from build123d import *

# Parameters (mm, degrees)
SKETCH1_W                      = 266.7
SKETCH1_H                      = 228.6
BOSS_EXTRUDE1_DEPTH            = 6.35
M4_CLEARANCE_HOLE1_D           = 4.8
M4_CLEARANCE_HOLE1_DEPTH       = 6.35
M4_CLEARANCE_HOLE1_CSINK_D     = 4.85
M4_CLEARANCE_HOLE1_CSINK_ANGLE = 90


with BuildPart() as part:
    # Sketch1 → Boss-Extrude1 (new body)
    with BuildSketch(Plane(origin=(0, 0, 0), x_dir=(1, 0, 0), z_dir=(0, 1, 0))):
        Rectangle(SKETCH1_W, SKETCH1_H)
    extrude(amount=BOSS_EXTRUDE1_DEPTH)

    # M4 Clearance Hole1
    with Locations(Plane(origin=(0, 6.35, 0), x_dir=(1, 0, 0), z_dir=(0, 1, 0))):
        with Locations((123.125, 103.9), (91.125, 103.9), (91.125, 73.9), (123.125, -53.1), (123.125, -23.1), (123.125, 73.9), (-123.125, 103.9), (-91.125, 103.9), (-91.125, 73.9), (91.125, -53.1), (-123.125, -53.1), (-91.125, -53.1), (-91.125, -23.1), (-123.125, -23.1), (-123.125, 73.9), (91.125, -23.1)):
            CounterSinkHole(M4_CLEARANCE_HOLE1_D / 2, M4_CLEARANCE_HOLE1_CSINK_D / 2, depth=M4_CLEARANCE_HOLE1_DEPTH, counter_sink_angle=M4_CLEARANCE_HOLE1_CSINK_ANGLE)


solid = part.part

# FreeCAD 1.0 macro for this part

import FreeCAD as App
import Part
import Sketcher
from FreeCAD import Vector
Q = App.Units.Quantity


def add_polygon(sketch, points):
    """Adds a closed chain of lines whose ends are joined by coincident constraints."""
    first, n = sketch.GeometryCount, len(points)
    for a, b in zip(points, points[1:] + points[:1]):
        sketch.addGeometry(Part.LineSegment(App.Vector(*a, 0), App.Vector(*b, 0)), False)
    for i in range(n):
        sketch.addConstraint(Sketcher.Constraint("Coincident", first + i, 2, first + (i + 1) % n, 1))

doc = App.newDocument("Part")
body = doc.addObject("PartDesign::Body", "Body")

# Sketch on XZ plane
sketch1 = doc.addObject("Sketcher::SketchObject", "Sketch")
body.addObject(sketch1)
sketch1.AttachmentSupport = (doc.XZ_Plane, [""])
sketch1.MapMode = "FlatFace"
add_polygon(sketch1, [(-133, -114), (-133, 114), (133, 114), (133, -114)])  # lines 0-3
sketch1.addConstraint([
    Sketcher.Constraint("Vertical", 0),
    Sketcher.Constraint("Horizontal", 1),
    Sketcher.Constraint("Vertical", 2),
    Sketcher.Constraint("Horizontal", 3),
    Sketcher.Constraint("Symmetric", 0, 2, 2, 2, -1, 1),
    Sketcher.Constraint("DistanceY", 0, 1, 0, 2, Q("9 in")),
    Sketcher.Constraint("DistanceX", 1, 1, 1, 2, Q("10.5 in")),
])
pad1 = doc.addObject("PartDesign::Pad", "Pad")
body.addObject(pad1)
pad1.Profile = sketch1
pad1.Length = Q("0.25 in")
pad1.Reversed = True

# Sketch on XZ plane
sketch2 = doc.addObject("Sketcher::SketchObject", "Sketch001")
body.addObject(sketch2)
sketch2.AttachmentSupport = (doc.XZ_Plane, [""])
sketch2.MapMode = "FlatFace"
sketch2.AttachmentOffset = App.Placement(Vector(0, 0, -0.25 * 25.4), App.Rotation())
sketch2.addGeometry([
    Part.Circle(Vector(123.1, -103.9, 0), Vector(0, 0, 1), 2.4),  # 0
    Part.Circle(Vector(91.1, -103.9, 0), Vector(0, 0, 1), 2.4),  # 1
    Part.Circle(Vector(91.1, -73.9, 0), Vector(0, 0, 1), 2.4),  # 2
    Part.Circle(Vector(123.1, 53.1, 0), Vector(0, 0, 1), 2.4),  # 3
    Part.Circle(Vector(123.1, 23.1, 0), Vector(0, 0, 1), 2.4),  # 4
    Part.Circle(Vector(123.1, -73.9, 0), Vector(0, 0, 1), 2.4),  # 5
    Part.Circle(Vector(-123.1, -103.9, 0), Vector(0, 0, 1), 2.4),  # 6
    Part.Circle(Vector(-91.1, -103.9, 0), Vector(0, 0, 1), 2.4),  # 7
    Part.Circle(Vector(-91.1, -73.9, 0), Vector(0, 0, 1), 2.4),  # 8
    Part.Circle(Vector(91.1, 53.1, 0), Vector(0, 0, 1), 2.4),  # 9
    Part.Circle(Vector(-123.1, 53.1, 0), Vector(0, 0, 1), 2.4),  # 10
    Part.Circle(Vector(-91.1, 53.1, 0), Vector(0, 0, 1), 2.4),  # 11
    Part.Circle(Vector(-91.1, 23.1, 0), Vector(0, 0, 1), 2.4),  # 12
    Part.Circle(Vector(-123.1, 23.1, 0), Vector(0, 0, 1), 2.4),  # 13
    Part.Circle(Vector(-123.1, -73.9, 0), Vector(0, 0, 1), 2.4),  # 14
    Part.Circle(Vector(91.1, 23.1, 0), Vector(0, 0, 1), 2.4),  # 15
], False)
sketch2.addConstraint([
    Sketcher.Constraint("Equal", 0, 1),
    Sketcher.Constraint("Equal", 1, 2),
    Sketcher.Constraint("Equal", 2, 3),
    Sketcher.Constraint("Equal", 3, 4),
    Sketcher.Constraint("Equal", 4, 5),
    Sketcher.Constraint("Equal", 5, 6),
    Sketcher.Constraint("Equal", 6, 7),
    Sketcher.Constraint("Equal", 7, 8),
    Sketcher.Constraint("Equal", 8, 9),
    Sketcher.Constraint("Equal", 9, 10),
    Sketcher.Constraint("Equal", 10, 11),
    Sketcher.Constraint("Equal", 11, 12),
    Sketcher.Constraint("Equal", 12, 13),
    Sketcher.Constraint("Equal", 13, 14),
    Sketcher.Constraint("Equal", 14, 15),
    Sketcher.Constraint("Symmetric", 0, 3, 6, 3, -2),
    Sketcher.Constraint("Symmetric", 1, 3, 7, 3, -2),
    Sketcher.Constraint("Symmetric", 2, 3, 8, 3, -2),
    Sketcher.Constraint("Symmetric", 3, 3, 10, 3, -2),
    Sketcher.Constraint("Symmetric", 9, 3, 11, 3, -2),
    Sketcher.Constraint("Symmetric", 4, 3, 13, 3, -2),
    Sketcher.Constraint("Symmetric", 5, 3, 14, 3, -2),
    Sketcher.Constraint("Symmetric", 12, 3, 15, 3, -2),
    Sketcher.Constraint("Horizontal", 0, 3, 1, 3),
    Sketcher.Constraint("Horizontal", 2, 3, 5, 3),
    Sketcher.Constraint("Horizontal", 3, 3, 9, 3),
    Sketcher.Constraint("Horizontal", 4, 3, 12, 3),
    Sketcher.Constraint("Vertical", 1, 3, 2, 3),
    Sketcher.Constraint("Vertical", 0, 3, 3, 3),
    Sketcher.Constraint("Vertical", 3, 3, 4, 3),
    Sketcher.Constraint("Vertical", 4, 3, 5, 3),
    Sketcher.Constraint("Vertical", 2, 3, 9, 3),
    Sketcher.Constraint("Vertical", 11, 3, 12, 3),
    Sketcher.Constraint("DistanceY", 2, 3, 3, 3, Q("5 in")),
    Sketcher.Constraint("DistanceY", 0, 3, 4, 3, Q("5 in")),
    Sketcher.Constraint("Diameter", 0, 4.8),
    Sketcher.Constraint("DistanceX", -1, 1, 0, 3, 123.125),
    Sketcher.Constraint("DistanceY", 0, 3, -1, 1, 103.9),
    Sketcher.Constraint("DistanceX", -1, 1, 1, 3, 91.125),
    Sketcher.Constraint("DistanceY", 2, 3, -1, 1, 73.9),
])
doc.recompute()
hole = doc.addObject("PartDesign::Hole", "Hole")
body.addObject(hole)
hole.Profile = sketch2
hole.ThreadType = "None"
hole.Diameter = 4.8
hole.DepthType = "Dimension"
hole.Depth = Q("0.25 in")
hole.DrillPoint = "Flat"
hole.HoleCutType = "Countersink"
hole.HoleCutDiameter = 4.85
hole.HoleCutCountersinkAngle = 90
hole.Reversed = True

doc.recompute()
